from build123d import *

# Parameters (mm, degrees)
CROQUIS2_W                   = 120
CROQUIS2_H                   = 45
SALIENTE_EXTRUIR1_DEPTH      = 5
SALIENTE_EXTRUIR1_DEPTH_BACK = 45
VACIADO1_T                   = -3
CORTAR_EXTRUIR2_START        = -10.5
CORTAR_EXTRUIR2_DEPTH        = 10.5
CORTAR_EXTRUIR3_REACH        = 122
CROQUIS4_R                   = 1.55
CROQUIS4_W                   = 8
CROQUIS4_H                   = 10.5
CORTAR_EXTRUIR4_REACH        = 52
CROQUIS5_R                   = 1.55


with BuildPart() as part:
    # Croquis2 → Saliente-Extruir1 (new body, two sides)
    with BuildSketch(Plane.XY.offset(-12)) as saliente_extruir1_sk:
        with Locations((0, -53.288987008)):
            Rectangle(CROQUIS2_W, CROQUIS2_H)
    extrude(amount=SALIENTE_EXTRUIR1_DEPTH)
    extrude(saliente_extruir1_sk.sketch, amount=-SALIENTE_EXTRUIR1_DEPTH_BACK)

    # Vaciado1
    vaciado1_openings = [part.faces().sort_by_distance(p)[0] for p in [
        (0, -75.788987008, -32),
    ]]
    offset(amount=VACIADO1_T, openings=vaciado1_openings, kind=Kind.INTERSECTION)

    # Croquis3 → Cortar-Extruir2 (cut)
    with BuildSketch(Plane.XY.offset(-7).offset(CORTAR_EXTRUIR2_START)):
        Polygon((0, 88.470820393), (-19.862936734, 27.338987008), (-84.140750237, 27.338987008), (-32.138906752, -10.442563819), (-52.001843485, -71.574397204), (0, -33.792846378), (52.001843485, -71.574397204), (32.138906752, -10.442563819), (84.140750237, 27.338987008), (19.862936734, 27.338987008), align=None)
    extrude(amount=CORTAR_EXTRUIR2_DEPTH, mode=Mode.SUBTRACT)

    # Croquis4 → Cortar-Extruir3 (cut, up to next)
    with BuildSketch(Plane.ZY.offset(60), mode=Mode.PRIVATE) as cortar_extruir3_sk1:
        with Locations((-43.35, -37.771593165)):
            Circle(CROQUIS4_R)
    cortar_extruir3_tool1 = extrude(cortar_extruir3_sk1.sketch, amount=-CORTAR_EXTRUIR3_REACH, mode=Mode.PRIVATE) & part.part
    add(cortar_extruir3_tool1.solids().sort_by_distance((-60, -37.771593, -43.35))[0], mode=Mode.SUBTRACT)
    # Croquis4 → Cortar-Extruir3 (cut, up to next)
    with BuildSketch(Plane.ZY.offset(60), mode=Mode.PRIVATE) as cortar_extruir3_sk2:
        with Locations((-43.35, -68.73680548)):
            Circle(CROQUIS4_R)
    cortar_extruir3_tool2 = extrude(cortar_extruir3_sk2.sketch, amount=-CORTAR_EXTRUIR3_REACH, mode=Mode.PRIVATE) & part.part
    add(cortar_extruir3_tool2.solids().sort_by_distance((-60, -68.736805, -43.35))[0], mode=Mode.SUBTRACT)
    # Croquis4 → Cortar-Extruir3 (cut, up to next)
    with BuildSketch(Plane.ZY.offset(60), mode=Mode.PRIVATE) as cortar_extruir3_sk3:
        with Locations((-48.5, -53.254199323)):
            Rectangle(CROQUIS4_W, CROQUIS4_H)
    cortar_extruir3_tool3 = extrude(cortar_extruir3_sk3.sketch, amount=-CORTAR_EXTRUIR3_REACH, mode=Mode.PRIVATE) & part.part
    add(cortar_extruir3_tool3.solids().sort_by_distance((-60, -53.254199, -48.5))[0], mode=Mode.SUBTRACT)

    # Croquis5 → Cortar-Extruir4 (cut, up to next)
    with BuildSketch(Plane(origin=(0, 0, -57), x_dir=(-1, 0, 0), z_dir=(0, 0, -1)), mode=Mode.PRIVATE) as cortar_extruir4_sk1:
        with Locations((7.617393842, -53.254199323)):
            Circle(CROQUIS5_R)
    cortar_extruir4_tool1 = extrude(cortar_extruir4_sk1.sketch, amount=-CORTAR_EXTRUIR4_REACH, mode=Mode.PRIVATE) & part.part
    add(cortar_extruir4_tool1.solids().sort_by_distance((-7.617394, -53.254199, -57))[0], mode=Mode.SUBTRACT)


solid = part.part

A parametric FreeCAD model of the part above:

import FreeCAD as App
import Part
import Sketcher

V = App.Vector
Q = App.Units.Quantity


def faces_at(feature, points):
    """Names of the faces that lie closest to the given points."""
    faces = feature.Shape.Faces
    near = lambda p: min(range(len(faces)), key=lambda i: faces[i].distToShape(Part.Vertex(*p))[0])
    return sorted({f"Face{near(p) + 1}" for p in points})

doc = App.newDocument("Part")
body = doc.addObject("PartDesign::Body", "Body")

sketch1 = doc.addObject("Sketcher::SketchObject", "Sketch")
body.addObject(sketch1)
sketch1.AttachmentSupport = (doc.XY_Plane, [""])
sketch1.MapMode = "FlatFace"
sketch1.AttachmentOffset = App.Placement(V(0, 0, -12), App.Rotation())
sketch1.addGeometry(Part.LineSegment(V(-60, -31, 0), V(-60, -76, 0)), False)
sketch1.addGeometry(Part.LineSegment(V(-60, -76, 0), V(60, -76, 0)), False)
sketch1.addGeometry(Part.LineSegment(V(60, -76, 0), V(60, -31, 0)), False)
sketch1.addGeometry(Part.LineSegment(V(60, -31, 0), V(-60, -31, 0)), False)
sketch1.addConstraint(Sketcher.Constraint("Coincident", 0, 2, 1, 1))
sketch1.addConstraint(Sketcher.Constraint("Coincident", 1, 2, 2, 1))
sketch1.addConstraint(Sketcher.Constraint("Coincident", 2, 2, 3, 1))
sketch1.addConstraint(Sketcher.Constraint("Coincident", 3, 2, 0, 1))
sketch1.addConstraint(Sketcher.Constraint("Vertical", 0))
sketch1.addConstraint(Sketcher.Constraint("Horizontal", 1))
sketch1.addConstraint(Sketcher.Constraint("Vertical", 2))
sketch1.addConstraint(Sketcher.Constraint("Horizontal", 3))
sketch1.addConstraint(Sketcher.Constraint("DistanceX", 1, 1, 1, 2, 120.0))
sketch1.addConstraint(Sketcher.Constraint("DistanceY", 0, 2, 0, 1, 45.0))
sketch1.addConstraint(Sketcher.Constraint("DistanceX", 0, 2, -1, 1, 60.0))
sketch1.addConstraint(Sketcher.Constraint("DistanceY", 0, 2, -1, 1, 75.788987))
pad1 = doc.addObject("PartDesign::Pad", "Pad")
body.addObject(pad1)
pad1.Profile = sketch1
pad1.Type = "TwoLengths"
pad1.Length = 5
pad1.Length2 = 45
doc.recompute()

thickness = doc.addObject("PartDesign::Thickness", "Thickness")
body.addObject(thickness)
thickness.Base = (pad1, faces_at(pad1, [(0, -75.789, -32)]))
thickness.Value = 3
thickness.Reversed = True
thickness.Join = "Intersection"

sketch2 = doc.addObject("Sketcher::SketchObject", "Sketch001")
body.addObject(sketch2)
sketch2.AttachmentSupport = (doc.XY_Plane, [""])
sketch2.MapMode = "FlatFace"
sketch2.AttachmentOffset = App.Placement(V(0, 0, -17.5), App.Rotation())
sketch2.addGeometry(Part.LineSegment(V(0, 88, 0), V(-20, 27, 0)), False)
sketch2.addGeometry(Part.LineSegment(V(-20, 27, 0), V(-84, 27, 0)), False)
sketch2.addGeometry(Part.LineSegment(V(-84, 27, 0), V(-32, -10, 0)), False)
sketch2.addGeometry(Part.LineSegment(V(-32, -10, 0), V(-52, -72, 0)), False)
sketch2.addGeometry(Part.LineSegment(V(-52, -72, 0), V(0, -34, 0)), False)
sketch2.addGeometry(Part.LineSegment(V(0, -34, 0), V(52, -72, 0)), False)
sketch2.addGeometry(Part.LineSegment(V(52, -72, 0), V(32, -10, 0)), False)
sketch2.addGeometry(Part.LineSegment(V(32, -10, 0), V(84, 27, 0)), False)
sketch2.addGeometry(Part.LineSegment(V(84, 27, 0), V(20, 27, 0)), False)
sketch2.addGeometry(Part.LineSegment(V(20, 27, 0), V(0, 88, 0)), False)
sketch2.addConstraint(Sketcher.Constraint("Coincident", 0, 2, 1, 1))
sketch2.addConstraint(Sketcher.Constraint("Coincident", 1, 2, 2, 1))
sketch2.addConstraint(Sketcher.Constraint("Coincident", 2, 2, 3, 1))
sketch2.addConstraint(Sketcher.Constraint("Coincident", 3, 2, 4, 1))
sketch2.addConstraint(Sketcher.Constraint("Coincident", 4, 2, 5, 1))
sketch2.addConstraint(Sketcher.Constraint("Coincident", 5, 2, 6, 1))
sketch2.addConstraint(Sketcher.Constraint("Coincident", 6, 2, 7, 1))
sketch2.addConstraint(Sketcher.Constraint("Coincident", 7, 2, 8, 1))
sketch2.addConstraint(Sketcher.Constraint("Coincident", 8, 2, 9, 1))
sketch2.addConstraint(Sketcher.Constraint("Coincident", 9, 2, 0, 1))
sketch2.addConstraint(Sketcher.Constraint("Horizontal", 1))
sketch2.addConstraint(Sketcher.Constraint("Horizontal", 8))
sketch2.addConstraint(Sketcher.Constraint("Symmetric", 3, 2, 5, 2, -2))
sketch2.addConstraint(Sketcher.Constraint("Symmetric", 2, 2, 6, 2, -2))
sketch2.addConstraint(Sketcher.Constraint("Symmetric", 1, 2, 7, 2, -2))
sketch2.addConstraint(Sketcher.Constraint("PointOnObject", 4, 2, -2))
sketch2.addConstraint(Sketcher.Constraint("PointOnObject", 9, 2, -2))
sketch2.addConstraint(Sketcher.Constraint("Parallel", 0, 3))
sketch2.addConstraint(Sketcher.Constraint("Parallel", 2, 5))
sketch2.addConstraint(Sketcher.Constraint("Parallel", 6, 9))
sketch2.addConstraint(Sketcher.Constraint("Equal", 0, 2))
sketch2.addConstraint(Sketcher.Constraint("Equal", 2, 3))
sketch2.addConstraint(Sketcher.Constraint("Equal", 3, 4))
sketch2.addConstraint(Sketcher.Constraint("Angle", 0, Q("-108 deg")))
sketch2.addConstraint(Sketcher.Constraint("Angle", 2, Q("-36 deg")))
sketch2.addConstraint(Sketcher.Constraint("DistanceX", 1, 2, 1, 1, 64.277814))
sketch2.addConstraint(Sketcher.Constraint("DistanceY", -1, 1, 9, 2, 88.47082))
pocket1 = doc.addObject("PartDesign::Pocket", "Pocket")
body.addObject(pocket1)
pocket1.Profile = sketch2
pocket1.Length = 10.5
pocket1.Reversed = True

sketch3 = doc.addObject("Sketcher::SketchObject", "Sketch002")
body.addObject(sketch3)
sketch3.AttachmentSupport = (doc.YZ_Plane, [""])
sketch3.MapMode = "FlatFace"
sketch3.AttachmentOffset = App.Placement(V(0, 0, -60), App.Rotation())
sketch3.addGeometry(Part.Circle(V(-37.8, -43.4, 0), V(0, 0, 1), 1.6), False)
sketch3.addConstraint(Sketcher.Constraint("Diameter", 0, 3.1))
sketch3.addConstraint(Sketcher.Constraint("DistanceY", 0, 3, -1, 1, 43.35))
sketch3.addConstraint(Sketcher.Constraint("DistanceX", 0, 3, -1, 1, 37.771593))
pocket2 = doc.addObject("PartDesign::Pocket", "Pocket001")
body.addObject(pocket2)
pocket2.Profile = sketch3
pocket2.Type = "UpToFirst"
pocket2.Reversed = True

sketch4 = doc.addObject("Sketcher::SketchObject", "Sketch003")
body.addObject(sketch4)
sketch4.AttachmentSupport = (doc.YZ_Plane, [""])
sketch4.MapMode = "FlatFace"
sketch4.AttachmentOffset = App.Placement(V(0, 0, -60), App.Rotation())
sketch4.addGeometry(Part.Circle(V(-68.7, -43.4, 0), V(0, 0, 1), 1.6), False)
sketch4.addConstraint(Sketcher.Constraint("Diameter", 0, 3.1))
sketch4.addConstraint(Sketcher.Constraint("DistanceY", 0, 3, -1, 1, 43.35))
sketch4.addConstraint(Sketcher.Constraint("DistanceX", 0, 3, -1, 1, 68.736805))
pocket3 = doc.addObject("PartDesign::Pocket", "Pocket002")
body.addObject(pocket3)
pocket3.Profile = sketch4
pocket3.Type = "UpToFirst"
pocket3.Reversed = True

sketch5 = doc.addObject("Sketcher::SketchObject", "Sketch004")
body.addObject(sketch5)
sketch5.AttachmentSupport = (doc.YZ_Plane, [""])
sketch5.MapMode = "FlatFace"
sketch5.AttachmentOffset = App.Placement(V(0, 0, -60), App.Rotation())
sketch5.addGeometry(Part.LineSegment(V(-48, -52, 0), V(-59, -52, 0)), False)
sketch5.addGeometry(Part.LineSegment(V(-59, -52, 0), V(-59, -44, 0)), False)
sketch5.addGeometry(Part.LineSegment(V(-59, -44, 0), V(-48, -44, 0)), False)
sketch5.addGeometry(Part.LineSegment(V(-48, -44, 0), V(-48, -52, 0)), False)
sketch5.addConstraint(Sketcher.Constraint("Coincident", 0, 2, 1, 1))
sketch5.addConstraint(Sketcher.Constraint("Coincident", 1, 2, 2, 1))
sketch5.addConstraint(Sketcher.Constraint("Coincident", 2, 2, 3, 1))
sketch5.addConstraint(Sketcher.Constraint("Coincident", 3, 2, 0, 1))
sketch5.addConstraint(Sketcher.Constraint("Horizontal", 0))
sketch5.addConstraint(Sketcher.Constraint("Vertical", 1))
sketch5.addConstraint(Sketcher.Constraint("Horizontal", 2))
sketch5.addConstraint(Sketcher.Constraint("Vertical", 3))
sketch5.addConstraint(Sketcher.Constraint("DistanceY", 1, 1, 1, 2, 8.0))
sketch5.addConstraint(Sketcher.Constraint("DistanceX", 0, 2, 0, 1, 10.5))
sketch5.addConstraint(Sketcher.Constraint("DistanceY", 0, 2, -1, 1, 52.5))
sketch5.addConstraint(Sketcher.Constraint("DistanceX", 0, 2, -1, 1, 58.504199))
pocket4 = doc.addObject("PartDesign::Pocket", "Pocket003")
body.addObject(pocket4)
pocket4.Profile = sketch5
pocket4.Type = "UpToFirst"
pocket4.Reversed = True

sketch6 = doc.addObject("Sketcher::SketchObject", "Sketch005")
body.addObject(sketch6)
sketch6.AttachmentSupport = (doc.XY_Plane, [""])
sketch6.MapMode = "FlatFace"
sketch6.AttachmentOffset = App.Placement(V(0, 0, -57), App.Rotation())
sketch6.addGeometry(Part.Circle(V(-7.6, -53.3, 0), V(0, 0, 1), 1.6), False)
sketch6.addConstraint(Sketcher.Constraint("Diameter", 0, 3.1))
sketch6.addConstraint(Sketcher.Constraint("DistanceY", 0, 3, -1, 1, 53.254199))
sketch6.addConstraint(Sketcher.Constraint("DistanceX", 0, 3, -1, 1, 7.617394))
pocket5 = doc.addObject("PartDesign::Pocket", "Pocket004")
body.addObject(pocket5)
pocket5.Profile = sketch6
pocket5.Type = "UpToFirst"
pocket5.Reversed = True

doc.recompute()
